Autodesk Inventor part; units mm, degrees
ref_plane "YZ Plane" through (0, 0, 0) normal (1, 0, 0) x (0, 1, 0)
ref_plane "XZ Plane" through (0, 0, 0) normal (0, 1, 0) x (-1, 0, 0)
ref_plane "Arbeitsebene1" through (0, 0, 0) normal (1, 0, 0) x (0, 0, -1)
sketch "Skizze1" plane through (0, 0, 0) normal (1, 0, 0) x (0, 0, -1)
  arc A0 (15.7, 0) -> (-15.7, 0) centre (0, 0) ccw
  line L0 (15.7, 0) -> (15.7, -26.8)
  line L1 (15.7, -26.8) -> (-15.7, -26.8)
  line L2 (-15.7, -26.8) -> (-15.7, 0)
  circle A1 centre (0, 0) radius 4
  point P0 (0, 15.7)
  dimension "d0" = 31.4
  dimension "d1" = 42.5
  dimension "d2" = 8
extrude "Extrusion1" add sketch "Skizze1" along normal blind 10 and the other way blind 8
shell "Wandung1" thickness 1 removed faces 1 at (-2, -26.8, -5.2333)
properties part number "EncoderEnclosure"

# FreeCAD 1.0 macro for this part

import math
import FreeCAD as App
import Part
import Sketcher


def faces_at(feature, points):
    """Names of the faces that lie closest to the given points."""
    faces = feature.Shape.Faces
    near = lambda p: min(range(len(faces)), key=lambda i: faces[i].distToShape(Part.Vertex(*p))[0])
    return sorted({f"Face{near(p) + 1}" for p in points})

doc = App.newDocument("Part")
params = doc.addObject("Spreadsheet::Sheet", "Params")
for row, (alias, value) in enumerate([
    ("sketch1_diameter", "8 mm"),
    ("sketch1_radius", "15.7 mm"),
    ("sketch1_width", "26.8 mm"),
    ("pad1_length", "10 mm"),
    ("pad1_length2", "8 mm"),
    ("thickness_wall", "1 mm"),
], start=1):
    params.set(f"A{row}", alias)
    params.set(f"B{row}", "=" + value)
    params.setAlias(f"B{row}", alias)

body = doc.addObject("PartDesign::Body", "Body")

# Sketch on YZ plane
sketch1 = body.newObject("Sketcher::SketchObject", "Sketch")
sketch1.AttachmentSupport = (doc.getObject("YZ_Plane"), [""])
sketch1.MapMode = "FlatFace"
sketch1.addGeometry(Part.LineSegment(App.Vector(-26.8, -15.7, 0), App.Vector(0, -15.7, 0)), False)
sketch1.addGeometry(Part.ArcOfCircle(Part.Circle(App.Vector(0, 0, 0), App.Vector(0, 0, 1), 15.7), math.radians(-90), math.radians(90)), False)
sketch1.addGeometry(Part.LineSegment(App.Vector(0, 15.7, 0), App.Vector(-26.8, 15.7, 0)), False)
sketch1.addGeometry(Part.LineSegment(App.Vector(-26.8, 15.7, 0), App.Vector(-26.8, -15.7, 0)), False)
sketch1.addGeometry(Part.Circle(App.Vector(0, 0, 0), App.Vector(0, 0, 1), 4), False)
sketch1.addConstraint(Sketcher.Constraint("Tangent", 0, 2, 1, 1))
sketch1.addConstraint(Sketcher.Constraint("Tangent", 1, 2, 2, 1))
sketch1.addConstraint(Sketcher.Constraint("Coincident", 2, 2, 3, 1))
sketch1.addConstraint(Sketcher.Constraint("Coincident", 3, 2, 0, 1))
sketch1.addConstraint(Sketcher.Constraint("Horizontal", 0))
sketch1.addConstraint(Sketcher.Constraint("Horizontal", 2))
sketch1.addConstraint(Sketcher.Constraint("Vertical", 3))
sketch1.addConstraint(Sketcher.Constraint("Coincident", 1, 3, -1, 1))
sketch1.addConstraint(Sketcher.Constraint("Coincident", 4, 3, -1, 1))
sketch1.addConstraint(Sketcher.Constraint("Diameter", 4, 8.0))
sketch1.addConstraint(Sketcher.Constraint("Radius", 1, 15.7))
sketch1.addConstraint(Sketcher.Constraint("DistanceX", 0, 1, 0, 2, 26.8))
sketch1.setExpression("Constraints[9]", "Params.sketch1_diameter")
sketch1.setExpression("Constraints[10]", "Params.sketch1_radius")
sketch1.setExpression("Constraints[11]", "Params.sketch1_width")
pad1 = body.newObject("PartDesign::Pad", "Pad")
pad1.Profile = sketch1
pad1.Type = "TwoLengths"
pad1.setExpression("Length", "Params.pad1_length")
pad1.setExpression("Length2", "Params.pad1_length2")
doc.recompute()

thickness = body.newObject("PartDesign::Thickness", "Thickness")
thickness.Base = (pad1, faces_at(pad1, [(-2, -26.8, -5.233)]))
thickness.setExpression("Value", "Params.thickness_wall")
thickness.Reversed = True
thickness.Join = "Intersection"

doc.recompute()
